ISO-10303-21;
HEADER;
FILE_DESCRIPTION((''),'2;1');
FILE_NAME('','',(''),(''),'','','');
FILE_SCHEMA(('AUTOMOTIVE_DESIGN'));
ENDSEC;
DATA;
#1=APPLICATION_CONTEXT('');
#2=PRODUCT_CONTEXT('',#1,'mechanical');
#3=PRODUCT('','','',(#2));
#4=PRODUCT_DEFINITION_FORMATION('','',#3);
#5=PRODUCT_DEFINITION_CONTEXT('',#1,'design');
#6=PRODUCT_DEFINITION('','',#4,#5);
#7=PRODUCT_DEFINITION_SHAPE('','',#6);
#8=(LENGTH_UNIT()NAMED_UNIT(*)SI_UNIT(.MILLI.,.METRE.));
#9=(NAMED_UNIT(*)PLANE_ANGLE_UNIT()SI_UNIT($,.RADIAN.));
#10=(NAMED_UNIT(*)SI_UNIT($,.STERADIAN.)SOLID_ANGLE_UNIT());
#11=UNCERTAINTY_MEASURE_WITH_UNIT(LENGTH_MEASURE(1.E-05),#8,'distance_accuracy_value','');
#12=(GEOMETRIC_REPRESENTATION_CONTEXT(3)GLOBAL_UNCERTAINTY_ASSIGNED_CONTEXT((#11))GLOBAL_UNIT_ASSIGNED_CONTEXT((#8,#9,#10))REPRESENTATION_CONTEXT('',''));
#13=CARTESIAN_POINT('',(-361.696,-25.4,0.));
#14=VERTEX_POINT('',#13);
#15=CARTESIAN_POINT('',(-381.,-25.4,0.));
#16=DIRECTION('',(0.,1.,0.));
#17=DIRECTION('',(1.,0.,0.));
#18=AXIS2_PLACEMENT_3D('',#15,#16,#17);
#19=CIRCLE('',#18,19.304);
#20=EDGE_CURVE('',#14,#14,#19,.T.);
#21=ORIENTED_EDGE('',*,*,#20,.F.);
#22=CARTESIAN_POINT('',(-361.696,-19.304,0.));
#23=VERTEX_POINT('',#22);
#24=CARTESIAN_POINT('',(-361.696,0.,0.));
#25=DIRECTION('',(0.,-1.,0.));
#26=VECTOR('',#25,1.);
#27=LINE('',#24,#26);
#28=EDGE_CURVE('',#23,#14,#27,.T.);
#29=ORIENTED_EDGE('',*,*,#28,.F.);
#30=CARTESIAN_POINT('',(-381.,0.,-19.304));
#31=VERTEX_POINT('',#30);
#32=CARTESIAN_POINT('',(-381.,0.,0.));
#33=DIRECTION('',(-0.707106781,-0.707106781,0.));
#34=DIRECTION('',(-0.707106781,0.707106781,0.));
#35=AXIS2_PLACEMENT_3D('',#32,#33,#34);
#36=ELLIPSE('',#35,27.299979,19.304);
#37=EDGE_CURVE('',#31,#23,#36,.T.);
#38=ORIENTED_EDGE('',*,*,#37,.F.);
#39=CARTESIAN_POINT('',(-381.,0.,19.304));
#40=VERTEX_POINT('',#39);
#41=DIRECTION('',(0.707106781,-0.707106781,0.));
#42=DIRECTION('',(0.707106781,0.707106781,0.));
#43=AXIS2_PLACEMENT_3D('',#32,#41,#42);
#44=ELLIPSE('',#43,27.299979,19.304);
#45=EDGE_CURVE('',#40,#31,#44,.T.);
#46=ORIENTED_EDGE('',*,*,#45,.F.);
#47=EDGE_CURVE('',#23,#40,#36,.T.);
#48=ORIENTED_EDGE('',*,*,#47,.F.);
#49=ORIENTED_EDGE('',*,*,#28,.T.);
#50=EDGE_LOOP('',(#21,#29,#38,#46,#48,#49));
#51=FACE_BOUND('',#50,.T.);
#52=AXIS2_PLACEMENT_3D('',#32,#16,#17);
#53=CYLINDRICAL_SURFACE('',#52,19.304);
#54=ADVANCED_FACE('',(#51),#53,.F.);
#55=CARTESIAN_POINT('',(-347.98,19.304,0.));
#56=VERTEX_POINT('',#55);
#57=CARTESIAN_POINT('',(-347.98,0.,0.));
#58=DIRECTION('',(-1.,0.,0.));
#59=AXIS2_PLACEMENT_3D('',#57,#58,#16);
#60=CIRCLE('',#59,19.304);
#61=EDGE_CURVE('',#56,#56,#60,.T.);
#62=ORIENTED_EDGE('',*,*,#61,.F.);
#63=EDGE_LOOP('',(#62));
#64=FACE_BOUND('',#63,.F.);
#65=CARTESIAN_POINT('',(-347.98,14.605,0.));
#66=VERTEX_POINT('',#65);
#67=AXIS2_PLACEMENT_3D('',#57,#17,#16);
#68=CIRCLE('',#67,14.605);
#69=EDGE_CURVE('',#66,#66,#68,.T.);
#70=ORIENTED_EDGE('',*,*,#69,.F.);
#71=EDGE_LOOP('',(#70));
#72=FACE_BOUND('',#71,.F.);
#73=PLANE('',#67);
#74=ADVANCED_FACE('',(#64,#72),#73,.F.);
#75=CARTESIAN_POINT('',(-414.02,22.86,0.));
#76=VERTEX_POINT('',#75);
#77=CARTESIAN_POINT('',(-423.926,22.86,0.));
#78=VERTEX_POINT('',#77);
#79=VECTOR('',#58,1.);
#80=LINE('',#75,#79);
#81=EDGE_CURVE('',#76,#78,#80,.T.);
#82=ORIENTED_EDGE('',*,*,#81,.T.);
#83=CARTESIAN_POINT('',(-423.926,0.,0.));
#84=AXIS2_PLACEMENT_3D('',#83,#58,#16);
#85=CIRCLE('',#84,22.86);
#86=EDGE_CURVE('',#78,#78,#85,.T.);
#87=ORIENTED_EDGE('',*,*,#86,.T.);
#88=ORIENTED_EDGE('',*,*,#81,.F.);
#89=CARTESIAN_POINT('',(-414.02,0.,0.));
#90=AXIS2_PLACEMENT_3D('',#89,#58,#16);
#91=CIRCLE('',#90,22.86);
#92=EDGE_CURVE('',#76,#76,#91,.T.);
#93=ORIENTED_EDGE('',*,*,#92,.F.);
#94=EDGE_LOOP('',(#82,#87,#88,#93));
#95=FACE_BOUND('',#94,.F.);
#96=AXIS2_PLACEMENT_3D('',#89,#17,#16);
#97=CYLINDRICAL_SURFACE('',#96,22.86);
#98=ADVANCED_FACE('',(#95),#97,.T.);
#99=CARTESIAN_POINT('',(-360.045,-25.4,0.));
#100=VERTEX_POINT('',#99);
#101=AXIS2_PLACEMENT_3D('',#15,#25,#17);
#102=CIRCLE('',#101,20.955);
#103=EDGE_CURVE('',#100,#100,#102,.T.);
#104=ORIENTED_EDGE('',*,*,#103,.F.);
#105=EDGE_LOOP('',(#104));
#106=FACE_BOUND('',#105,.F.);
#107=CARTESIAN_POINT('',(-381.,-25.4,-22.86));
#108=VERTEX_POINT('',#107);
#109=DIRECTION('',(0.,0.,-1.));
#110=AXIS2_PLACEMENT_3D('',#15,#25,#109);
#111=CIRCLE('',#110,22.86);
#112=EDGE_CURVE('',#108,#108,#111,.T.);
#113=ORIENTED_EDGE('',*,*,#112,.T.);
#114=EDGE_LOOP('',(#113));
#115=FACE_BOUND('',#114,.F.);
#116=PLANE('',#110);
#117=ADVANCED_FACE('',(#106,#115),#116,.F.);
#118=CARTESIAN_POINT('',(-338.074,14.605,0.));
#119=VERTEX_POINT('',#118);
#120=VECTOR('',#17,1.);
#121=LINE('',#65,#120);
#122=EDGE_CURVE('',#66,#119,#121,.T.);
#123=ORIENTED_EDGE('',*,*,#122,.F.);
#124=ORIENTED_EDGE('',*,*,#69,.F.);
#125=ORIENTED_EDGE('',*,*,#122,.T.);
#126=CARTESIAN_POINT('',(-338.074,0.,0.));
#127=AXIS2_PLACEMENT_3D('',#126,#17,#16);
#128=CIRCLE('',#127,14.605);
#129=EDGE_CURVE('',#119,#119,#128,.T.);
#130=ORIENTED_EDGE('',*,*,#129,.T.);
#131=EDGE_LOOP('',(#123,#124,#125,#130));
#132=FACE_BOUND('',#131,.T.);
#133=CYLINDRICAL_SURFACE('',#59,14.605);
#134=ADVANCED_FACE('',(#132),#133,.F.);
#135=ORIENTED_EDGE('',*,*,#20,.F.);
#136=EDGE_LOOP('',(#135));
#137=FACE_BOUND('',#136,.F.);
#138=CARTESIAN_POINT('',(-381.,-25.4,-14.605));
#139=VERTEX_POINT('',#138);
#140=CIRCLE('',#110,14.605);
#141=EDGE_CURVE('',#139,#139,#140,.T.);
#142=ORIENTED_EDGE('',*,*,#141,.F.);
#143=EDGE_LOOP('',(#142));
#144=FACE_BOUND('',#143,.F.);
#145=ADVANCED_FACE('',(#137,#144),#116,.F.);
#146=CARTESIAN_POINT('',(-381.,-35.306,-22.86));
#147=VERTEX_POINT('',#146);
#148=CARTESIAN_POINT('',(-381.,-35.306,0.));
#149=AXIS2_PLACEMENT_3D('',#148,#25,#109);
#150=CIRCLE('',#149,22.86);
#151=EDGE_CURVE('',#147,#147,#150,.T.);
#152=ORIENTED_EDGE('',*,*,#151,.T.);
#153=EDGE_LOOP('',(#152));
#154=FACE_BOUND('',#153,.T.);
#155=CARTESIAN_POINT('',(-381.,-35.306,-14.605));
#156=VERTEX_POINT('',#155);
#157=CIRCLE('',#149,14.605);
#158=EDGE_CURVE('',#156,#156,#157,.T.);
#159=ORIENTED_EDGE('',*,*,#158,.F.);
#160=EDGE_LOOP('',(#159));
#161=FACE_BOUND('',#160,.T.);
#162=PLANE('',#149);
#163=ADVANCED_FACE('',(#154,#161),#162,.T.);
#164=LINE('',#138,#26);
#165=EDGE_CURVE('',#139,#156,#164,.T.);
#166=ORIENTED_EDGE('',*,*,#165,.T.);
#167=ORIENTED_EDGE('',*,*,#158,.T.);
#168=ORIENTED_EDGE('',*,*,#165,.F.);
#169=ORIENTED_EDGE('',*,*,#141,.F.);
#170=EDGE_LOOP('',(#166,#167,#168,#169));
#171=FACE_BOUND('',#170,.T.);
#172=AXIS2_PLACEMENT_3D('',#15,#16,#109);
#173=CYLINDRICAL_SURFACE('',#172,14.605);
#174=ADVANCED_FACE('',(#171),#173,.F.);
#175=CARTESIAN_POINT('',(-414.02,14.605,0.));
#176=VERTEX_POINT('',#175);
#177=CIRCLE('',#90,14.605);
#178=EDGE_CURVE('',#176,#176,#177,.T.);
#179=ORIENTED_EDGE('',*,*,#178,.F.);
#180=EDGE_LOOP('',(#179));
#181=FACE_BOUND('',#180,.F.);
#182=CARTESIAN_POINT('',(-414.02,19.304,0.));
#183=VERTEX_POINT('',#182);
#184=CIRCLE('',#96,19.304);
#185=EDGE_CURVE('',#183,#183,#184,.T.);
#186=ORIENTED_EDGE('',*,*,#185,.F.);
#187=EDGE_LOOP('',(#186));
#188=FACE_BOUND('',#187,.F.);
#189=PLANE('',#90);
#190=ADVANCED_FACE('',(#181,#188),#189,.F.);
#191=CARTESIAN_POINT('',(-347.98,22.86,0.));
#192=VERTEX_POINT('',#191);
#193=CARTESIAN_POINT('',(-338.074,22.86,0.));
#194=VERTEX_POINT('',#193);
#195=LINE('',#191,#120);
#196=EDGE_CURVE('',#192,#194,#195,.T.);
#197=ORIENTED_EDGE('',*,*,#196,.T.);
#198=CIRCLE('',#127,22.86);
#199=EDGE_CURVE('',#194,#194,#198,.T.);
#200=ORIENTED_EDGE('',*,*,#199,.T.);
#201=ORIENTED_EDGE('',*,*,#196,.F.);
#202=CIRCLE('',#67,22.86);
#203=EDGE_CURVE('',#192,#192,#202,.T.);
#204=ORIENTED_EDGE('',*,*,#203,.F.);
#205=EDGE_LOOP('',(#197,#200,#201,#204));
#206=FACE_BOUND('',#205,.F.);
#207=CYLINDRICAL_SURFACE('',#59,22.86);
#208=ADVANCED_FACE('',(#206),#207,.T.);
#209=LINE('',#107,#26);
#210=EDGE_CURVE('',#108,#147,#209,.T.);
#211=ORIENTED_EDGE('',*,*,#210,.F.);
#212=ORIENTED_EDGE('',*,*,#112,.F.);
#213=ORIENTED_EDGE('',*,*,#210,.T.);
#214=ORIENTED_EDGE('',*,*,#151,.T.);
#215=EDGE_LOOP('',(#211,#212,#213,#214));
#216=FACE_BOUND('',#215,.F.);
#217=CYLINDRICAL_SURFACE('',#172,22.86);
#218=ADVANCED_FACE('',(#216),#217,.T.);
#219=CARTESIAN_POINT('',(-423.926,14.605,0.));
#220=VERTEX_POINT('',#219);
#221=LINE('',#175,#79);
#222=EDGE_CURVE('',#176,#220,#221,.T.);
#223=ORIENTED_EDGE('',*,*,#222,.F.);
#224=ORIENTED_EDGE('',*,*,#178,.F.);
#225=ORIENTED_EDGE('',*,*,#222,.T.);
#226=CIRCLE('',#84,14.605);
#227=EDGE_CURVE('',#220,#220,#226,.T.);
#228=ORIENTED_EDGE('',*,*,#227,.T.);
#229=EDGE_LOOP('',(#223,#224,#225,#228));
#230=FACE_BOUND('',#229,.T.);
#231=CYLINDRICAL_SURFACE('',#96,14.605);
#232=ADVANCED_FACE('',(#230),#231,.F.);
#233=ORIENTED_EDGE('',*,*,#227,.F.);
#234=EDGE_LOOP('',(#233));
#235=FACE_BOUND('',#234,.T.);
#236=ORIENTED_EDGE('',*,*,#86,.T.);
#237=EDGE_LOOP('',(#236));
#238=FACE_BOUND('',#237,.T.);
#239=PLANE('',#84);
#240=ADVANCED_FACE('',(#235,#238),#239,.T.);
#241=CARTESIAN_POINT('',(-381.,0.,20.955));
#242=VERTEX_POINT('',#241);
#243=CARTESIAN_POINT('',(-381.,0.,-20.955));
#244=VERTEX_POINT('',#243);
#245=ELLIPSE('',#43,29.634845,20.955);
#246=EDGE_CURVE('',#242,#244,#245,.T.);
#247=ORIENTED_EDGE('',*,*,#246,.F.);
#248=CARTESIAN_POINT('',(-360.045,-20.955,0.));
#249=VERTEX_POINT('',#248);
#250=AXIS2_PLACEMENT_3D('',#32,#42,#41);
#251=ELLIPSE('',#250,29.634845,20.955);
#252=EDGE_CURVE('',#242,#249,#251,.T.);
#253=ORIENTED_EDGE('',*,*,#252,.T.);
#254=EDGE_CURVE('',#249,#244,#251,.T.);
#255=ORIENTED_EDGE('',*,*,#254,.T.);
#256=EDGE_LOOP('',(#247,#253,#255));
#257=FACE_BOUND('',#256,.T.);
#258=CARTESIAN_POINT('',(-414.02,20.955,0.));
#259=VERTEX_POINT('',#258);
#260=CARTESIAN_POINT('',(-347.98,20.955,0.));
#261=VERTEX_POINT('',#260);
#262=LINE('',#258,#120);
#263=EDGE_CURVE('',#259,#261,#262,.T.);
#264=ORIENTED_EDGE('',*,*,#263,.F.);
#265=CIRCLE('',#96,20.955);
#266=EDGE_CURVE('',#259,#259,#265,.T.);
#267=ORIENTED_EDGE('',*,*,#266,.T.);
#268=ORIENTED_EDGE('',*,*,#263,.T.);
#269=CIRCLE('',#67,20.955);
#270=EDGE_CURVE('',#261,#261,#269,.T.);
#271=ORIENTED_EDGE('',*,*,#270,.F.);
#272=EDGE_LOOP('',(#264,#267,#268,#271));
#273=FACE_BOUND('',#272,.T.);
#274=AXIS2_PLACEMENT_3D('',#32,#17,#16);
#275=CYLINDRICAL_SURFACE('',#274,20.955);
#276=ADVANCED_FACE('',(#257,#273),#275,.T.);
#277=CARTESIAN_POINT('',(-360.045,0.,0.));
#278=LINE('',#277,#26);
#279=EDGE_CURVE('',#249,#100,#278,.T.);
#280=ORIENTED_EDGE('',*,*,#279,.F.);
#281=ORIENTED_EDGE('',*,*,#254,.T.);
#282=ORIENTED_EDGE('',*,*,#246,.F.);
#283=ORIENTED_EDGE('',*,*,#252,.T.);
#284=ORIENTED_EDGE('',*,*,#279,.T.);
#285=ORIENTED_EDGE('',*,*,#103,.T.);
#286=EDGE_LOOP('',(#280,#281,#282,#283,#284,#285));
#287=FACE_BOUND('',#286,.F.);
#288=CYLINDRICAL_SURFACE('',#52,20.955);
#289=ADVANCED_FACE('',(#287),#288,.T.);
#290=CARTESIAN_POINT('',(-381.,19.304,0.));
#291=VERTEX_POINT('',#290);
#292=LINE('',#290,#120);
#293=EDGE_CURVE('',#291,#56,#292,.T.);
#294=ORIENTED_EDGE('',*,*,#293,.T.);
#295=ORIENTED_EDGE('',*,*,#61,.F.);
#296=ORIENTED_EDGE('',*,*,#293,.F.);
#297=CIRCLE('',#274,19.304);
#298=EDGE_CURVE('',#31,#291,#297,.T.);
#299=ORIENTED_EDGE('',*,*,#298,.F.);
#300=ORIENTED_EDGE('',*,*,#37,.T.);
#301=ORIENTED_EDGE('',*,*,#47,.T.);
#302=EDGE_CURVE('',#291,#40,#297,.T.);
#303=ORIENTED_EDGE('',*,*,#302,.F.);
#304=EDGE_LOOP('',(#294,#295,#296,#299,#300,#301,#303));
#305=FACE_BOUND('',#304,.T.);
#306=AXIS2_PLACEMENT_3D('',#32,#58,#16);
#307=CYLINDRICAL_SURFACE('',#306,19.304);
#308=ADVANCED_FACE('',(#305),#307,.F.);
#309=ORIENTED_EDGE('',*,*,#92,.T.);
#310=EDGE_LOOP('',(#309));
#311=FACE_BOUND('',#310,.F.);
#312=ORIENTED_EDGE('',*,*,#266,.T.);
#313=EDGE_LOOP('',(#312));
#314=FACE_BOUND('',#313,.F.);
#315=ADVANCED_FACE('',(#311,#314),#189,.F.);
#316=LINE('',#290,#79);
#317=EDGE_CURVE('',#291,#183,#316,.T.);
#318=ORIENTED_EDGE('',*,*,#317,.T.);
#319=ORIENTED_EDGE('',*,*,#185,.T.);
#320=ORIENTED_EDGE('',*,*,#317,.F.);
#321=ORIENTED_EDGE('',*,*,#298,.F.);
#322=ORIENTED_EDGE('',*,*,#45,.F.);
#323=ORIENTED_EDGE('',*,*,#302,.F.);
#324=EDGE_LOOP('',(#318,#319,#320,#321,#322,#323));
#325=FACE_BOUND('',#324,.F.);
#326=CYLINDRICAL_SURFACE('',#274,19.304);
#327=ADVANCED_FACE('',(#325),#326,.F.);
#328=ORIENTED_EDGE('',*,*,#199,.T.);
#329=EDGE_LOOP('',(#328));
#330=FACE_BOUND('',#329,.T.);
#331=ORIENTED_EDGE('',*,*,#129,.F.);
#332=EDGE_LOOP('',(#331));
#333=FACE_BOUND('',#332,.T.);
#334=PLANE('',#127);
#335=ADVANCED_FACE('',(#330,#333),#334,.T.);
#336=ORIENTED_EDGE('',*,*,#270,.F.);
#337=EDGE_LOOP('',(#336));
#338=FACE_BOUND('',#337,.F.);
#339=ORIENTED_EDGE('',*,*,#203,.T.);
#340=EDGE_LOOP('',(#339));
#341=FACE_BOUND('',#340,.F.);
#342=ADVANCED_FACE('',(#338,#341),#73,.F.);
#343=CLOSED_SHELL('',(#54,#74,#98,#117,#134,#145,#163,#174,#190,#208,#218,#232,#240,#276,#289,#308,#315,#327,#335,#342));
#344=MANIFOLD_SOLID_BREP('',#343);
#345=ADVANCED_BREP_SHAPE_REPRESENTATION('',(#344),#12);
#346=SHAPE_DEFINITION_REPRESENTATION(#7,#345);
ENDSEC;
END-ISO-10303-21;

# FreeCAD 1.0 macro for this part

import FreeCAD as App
import Part
import Sketcher
Q = App.Units.Quantity

doc = App.newDocument("Part")
params = doc.addObject("Spreadsheet::Sheet", "Params")
for row, (alias, value) in enumerate([
    ("sketch1_diameter", "1.65 in"),
    ("pad1_length", "2.6 in"),
    ("sketch2_diameter", "1.65 in"),
    ("pad2_length", "1 in"),
    ("sketch3_diameter", "1.52 in"),
    ("sketch4_diameter", "1.52 in"),
    ("sketch5_diameter", "1.8 in"),
    ("sketch5_diameter2", "1.15 in"),
    ("pad3_length", "0.39 in"),
    ("sketch6_diameter", "1.8 in"),
    ("sketch6_diameter2", "1.15 in"),
    ("pad4_length", "0.39 in"),
    ("sketch7_diameter", "1.8 in"),
    ("sketch7_diameter2", "1.15 in"),
    ("pad5_length", "0.39 in"),
], start=1):
    params.set(f"A{row}", alias)
    params.set(f"B{row}", "=" + value)
    params.setAlias(f"B{row}", alias)

body = doc.addObject("PartDesign::Body", "Body")

# Sketch on YZ plane
sketch1 = body.newObject("Sketcher::SketchObject", "Sketch")
sketch1.AttachmentSupport = (doc.getObject("YZ_Plane"), [""])
sketch1.MapMode = "FlatFace"
sketch1.addGeometry(Part.Circle(App.Vector(0, 0, 0), App.Vector(0, 0, 1), 20.955), False)
sketch1.addConstraint(Sketcher.Constraint("Coincident", 0, 3, -1, 1))
sketch1.addConstraint(Sketcher.Constraint("Diameter", 0, Q("1.65 in")))
sketch1.setExpression("Constraints[1]", "Params.sketch1_diameter")
pad1 = body.newObject("PartDesign::Pad", "Pad")
pad1.Profile = sketch1
pad1.setExpression("Length", "Params.pad1_length")
pad1.Midplane = True

# Sketch on XZ plane
sketch2 = body.newObject("Sketcher::SketchObject", "Sketch001")
sketch2.AttachmentSupport = (doc.getObject("XZ_Plane"), [""])
sketch2.MapMode = "FlatFace"
sketch2.addGeometry(Part.Circle(App.Vector(0, 0, 0), App.Vector(0, 0, 1), 20.955), False)
sketch2.addConstraint(Sketcher.Constraint("Coincident", 0, 3, -1, 1))
sketch2.addConstraint(Sketcher.Constraint("Diameter", 0, Q("1.65 in")))
sketch2.setExpression("Constraints[1]", "Params.sketch2_diameter")
pad2 = body.newObject("PartDesign::Pad", "Pad001")
pad2.Profile = sketch2
pad2.setExpression("Length", "Params.pad2_length")

# Sketch on YZ plane
sketch3 = body.newObject("Sketcher::SketchObject", "Sketch002")
sketch3.AttachmentSupport = (doc.getObject("YZ_Plane"), [""])
sketch3.MapMode = "FlatFace"
sketch3.addGeometry(Part.Circle(App.Vector(0, 0, 0), App.Vector(0, 0, 1), 19.304), False)
sketch3.addConstraint(Sketcher.Constraint("Coincident", 0, 3, -1, 1))
sketch3.addConstraint(Sketcher.Constraint("Diameter", 0, Q("1.52 in")))
sketch3.setExpression("Constraints[1]", "Params.sketch3_diameter")
pocket1 = body.newObject("PartDesign::Pocket", "Pocket")
pocket1.Profile = sketch3
pocket1.Type = "ThroughAll"
pocket1.Midplane = True

# Sketch on XZ plane
sketch4 = body.newObject("Sketcher::SketchObject", "Sketch003")
sketch4.AttachmentSupport = (doc.getObject("XZ_Plane"), [""])
sketch4.MapMode = "FlatFace"
sketch4.addGeometry(Part.Circle(App.Vector(0, 0, 0), App.Vector(0, 0, 1), 19.304), False)
sketch4.addConstraint(Sketcher.Constraint("Coincident", 0, 3, -1, 1))
sketch4.addConstraint(Sketcher.Constraint("Diameter", 0, Q("1.52 in")))
sketch4.setExpression("Constraints[1]", "Params.sketch4_diameter")
pocket2 = body.newObject("PartDesign::Pocket", "Pocket001")
pocket2.Profile = sketch4
pocket2.Type = "ThroughAll"
pocket2.Reversed = True

# Sketch on XZ plane
sketch5 = body.newObject("Sketcher::SketchObject", "Sketch004")
sketch5.AttachmentSupport = (doc.getObject("XZ_Plane"), [""])
sketch5.MapMode = "FlatFace"
sketch5.AttachmentOffset = App.Placement(App.Vector(0, 0, 1 * 25.4), App.Rotation())
sketch5.addGeometry(Part.Circle(App.Vector(0, 0, 0), App.Vector(0, 0, 1), 22.86), False)
sketch5.addGeometry(Part.Circle(App.Vector(0, 0, 0), App.Vector(0, 0, 1), 14.605), False)
sketch5.addConstraint(Sketcher.Constraint("Coincident", 0, 3, -1, 1))
sketch5.addConstraint(Sketcher.Constraint("Coincident", 1, 3, -1, 1))
sketch5.addConstraint(Sketcher.Constraint("Diameter", 0, Q("1.8 in")))
sketch5.addConstraint(Sketcher.Constraint("Diameter", 1, Q("1.15 in")))
sketch5.setExpression("Constraints[2]", "Params.sketch5_diameter")
sketch5.setExpression("Constraints[3]", "Params.sketch5_diameter2")
pad3 = body.newObject("PartDesign::Pad", "Pad002")
pad3.Profile = sketch5
pad3.setExpression("Length", "Params.pad3_length")

# Sketch on YZ plane
sketch6 = body.newObject("Sketcher::SketchObject", "Sketch005")
sketch6.AttachmentSupport = (doc.getObject("YZ_Plane"), [""])
sketch6.MapMode = "FlatFace"
sketch6.AttachmentOffset = App.Placement(App.Vector(0, 0, -1.3 * 25.4), App.Rotation())
sketch6.addGeometry(Part.Circle(App.Vector(0, 0, 0), App.Vector(0, 0, 1), 22.86), False)
sketch6.addGeometry(Part.Circle(App.Vector(0, 0, 0), App.Vector(0, 0, 1), 14.605), False)
sketch6.addConstraint(Sketcher.Constraint("Coincident", 0, 3, -1, 1))
sketch6.addConstraint(Sketcher.Constraint("Coincident", 1, 3, -1, 1))
sketch6.addConstraint(Sketcher.Constraint("Diameter", 0, Q("1.8 in")))
sketch6.addConstraint(Sketcher.Constraint("Diameter", 1, Q("1.15 in")))
sketch6.setExpression("Constraints[2]", "Params.sketch6_diameter")
sketch6.setExpression("Constraints[3]", "Params.sketch6_diameter2")
pad4 = body.newObject("PartDesign::Pad", "Pad003")
pad4.Profile = sketch6
pad4.setExpression("Length", "Params.pad4_length")
pad4.Reversed = True

# Sketch on YZ plane
sketch7 = body.newObject("Sketcher::SketchObject", "Sketch006")
sketch7.AttachmentSupport = (doc.getObject("YZ_Plane"), [""])
sketch7.MapMode = "FlatFace"
sketch7.AttachmentOffset = App.Placement(App.Vector(0, 0, 1.3 * 25.4), App.Rotation())
sketch7.addGeometry(Part.Circle(App.Vector(0, 0, 0), App.Vector(0, 0, 1), 22.86), False)
sketch7.addGeometry(Part.Circle(App.Vector(0, 0, 0), App.Vector(0, 0, 1), 14.605), False)
sketch7.addConstraint(Sketcher.Constraint("Coincident", 0, 3, -1, 1))
sketch7.addConstraint(Sketcher.Constraint("Coincident", 1, 3, -1, 1))
sketch7.addConstraint(Sketcher.Constraint("Diameter", 0, Q("1.8 in")))
sketch7.addConstraint(Sketcher.Constraint("Diameter", 1, Q("1.15 in")))
sketch7.setExpression("Constraints[2]", "Params.sketch7_diameter")
sketch7.setExpression("Constraints[3]", "Params.sketch7_diameter2")
pad5 = body.newObject("PartDesign::Pad", "Pad004")
pad5.Profile = sketch7
pad5.setExpression("Length", "Params.pad5_length")
body2 = doc.addObject("PartDesign::Body", "Body001")
doc.recompute()

body.Placement = App.Placement(App.Vector(-381, 0, 0), App.Rotation(App.Vector(0, 0, 1), 0))
boolean = body2.newObject("PartDesign::Boolean", "Boolean")
boolean.Type = "Fuse"
boolean.addObjects([body])

doc.recompute()
